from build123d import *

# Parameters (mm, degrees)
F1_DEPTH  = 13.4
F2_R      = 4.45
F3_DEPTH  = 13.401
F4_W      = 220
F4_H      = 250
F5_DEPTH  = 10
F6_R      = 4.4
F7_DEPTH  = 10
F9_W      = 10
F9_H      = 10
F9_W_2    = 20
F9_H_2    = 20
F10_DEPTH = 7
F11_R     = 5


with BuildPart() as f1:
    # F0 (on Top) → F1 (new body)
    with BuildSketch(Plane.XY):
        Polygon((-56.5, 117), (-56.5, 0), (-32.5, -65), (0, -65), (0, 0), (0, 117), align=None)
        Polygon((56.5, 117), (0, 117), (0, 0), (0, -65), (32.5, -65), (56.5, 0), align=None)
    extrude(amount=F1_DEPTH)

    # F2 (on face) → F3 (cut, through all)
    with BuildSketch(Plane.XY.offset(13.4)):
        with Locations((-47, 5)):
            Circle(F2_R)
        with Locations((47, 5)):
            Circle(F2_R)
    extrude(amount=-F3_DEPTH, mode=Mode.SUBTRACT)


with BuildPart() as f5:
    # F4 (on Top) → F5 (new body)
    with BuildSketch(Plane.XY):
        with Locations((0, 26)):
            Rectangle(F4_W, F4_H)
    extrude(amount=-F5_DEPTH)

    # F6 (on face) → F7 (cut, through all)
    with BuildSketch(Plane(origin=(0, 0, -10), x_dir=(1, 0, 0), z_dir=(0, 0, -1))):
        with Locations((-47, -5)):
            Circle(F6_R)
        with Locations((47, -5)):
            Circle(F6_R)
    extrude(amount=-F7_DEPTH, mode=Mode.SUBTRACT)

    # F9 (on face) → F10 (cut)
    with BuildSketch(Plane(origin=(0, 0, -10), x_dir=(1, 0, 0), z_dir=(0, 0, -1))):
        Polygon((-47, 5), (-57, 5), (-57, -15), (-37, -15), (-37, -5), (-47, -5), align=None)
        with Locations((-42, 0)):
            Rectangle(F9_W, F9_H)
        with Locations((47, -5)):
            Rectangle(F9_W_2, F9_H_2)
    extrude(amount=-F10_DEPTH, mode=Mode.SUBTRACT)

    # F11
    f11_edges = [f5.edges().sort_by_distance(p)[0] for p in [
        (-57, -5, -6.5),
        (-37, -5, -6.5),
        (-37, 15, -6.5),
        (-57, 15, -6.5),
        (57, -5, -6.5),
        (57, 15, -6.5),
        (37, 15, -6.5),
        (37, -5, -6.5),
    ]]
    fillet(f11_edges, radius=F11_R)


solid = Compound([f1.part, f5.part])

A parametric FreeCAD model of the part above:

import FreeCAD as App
import Part
import Sketcher
from FreeCAD import Vector


def edges_at(feature, points):
    """Names of the edges that pass closest to the given points."""
    edges = feature.Shape.Edges
    near = lambda p: min(range(len(edges)), key=lambda i: edges[i].distToShape(Part.Vertex(*p))[0])
    return sorted({f"Edge{near(p) + 1}" for p in points})


def add_polygon(sketch, points):
    """Adds a closed chain of lines whose ends are joined by coincident constraints."""
    first, n = sketch.GeometryCount, len(points)
    for a, b in zip(points, points[1:] + points[:1]):
        sketch.addGeometry(Part.LineSegment(App.Vector(*a, 0), App.Vector(*b, 0)), False)
    for i in range(n):
        sketch.addConstraint(Sketcher.Constraint("Coincident", first + i, 2, first + (i + 1) % n, 1))

doc = App.newDocument("Part")
params = doc.addObject("Spreadsheet::Sheet", "Params")
for row, (alias, value) in enumerate([
    ("sketch1_width", "65 mm"),
    ("sketch1_width2", "113 mm"),
    ("sketch1_height", "117 mm"),
    ("pad1_length", "13.4 mm"),
    ("sketch2_diameter", "8.9 mm"),
    ("sketch3_width", "220 mm"),
    ("sketch3_height", "250 mm"),
    ("pad2_length", "10 mm"),
    ("sketch4_diameter", "8.8 mm"),
    ("sketch5_width", "20 mm"),
    ("pocket3_length", "7 mm"),
    ("fillet_radius", "5 mm"),
], start=1):
    params.set(f"A{row}", alias)
    params.set(f"B{row}", "=" + value)
    params.setAlias(f"B{row}", alias)

body = doc.addObject("PartDesign::Body", "Body")

sketch1 = body.newObject("Sketcher::SketchObject", "Sketch")
sketch1.AttachmentSupport = (doc.getObject("XY_Plane"), [""])
sketch1.MapMode = "FlatFace"
add_polygon(sketch1, [(-56, 117), (-56, 0), (-32, -65), (32, -65), (56, 0), (56, 117)])
sketch1.addConstraint(Sketcher.Constraint("Vertical", 0))
sketch1.addConstraint(Sketcher.Constraint("Horizontal", 2))
sketch1.addConstraint(Sketcher.Constraint("Vertical", 4))
sketch1.addConstraint(Sketcher.Constraint("Horizontal", 5))
sketch1.addConstraint(Sketcher.Constraint("Symmetric", 0, 2, 3, 2, -1, 1))
sketch1.addConstraint(Sketcher.Constraint("PointOnObject", 0, 2, -1))
sketch1.addConstraint(Sketcher.Constraint("Equal", 1, 3))
sketch1.addConstraint(Sketcher.Constraint("DistanceX", 2, 1, 2, 2, 65.0))
sketch1.addConstraint(Sketcher.Constraint("DistanceX", 5, 2, 5, 1, 113.0))
sketch1.addConstraint(Sketcher.Constraint("DistanceY", 0, 2, 0, 1, 117.0))
sketch1.addConstraint(Sketcher.Constraint("DistanceY", 1, 2, -1, 1, 65.0))
sketch1.setExpression("Constraints[13]", "Params.sketch1_width")
sketch1.setExpression("Constraints[14]", "Params.sketch1_width2")
sketch1.setExpression("Constraints[15]", "Params.sketch1_height")
pad1 = body.newObject("PartDesign::Pad", "Pad")
pad1.Profile = sketch1
pad1.setExpression("Length", "Params.pad1_length")

sketch2 = body.newObject("Sketcher::SketchObject", "Sketch001")
sketch2.AttachmentSupport = (doc.getObject("XY_Plane"), [""])
sketch2.MapMode = "FlatFace"
sketch2.AttachmentOffset = App.Placement(Vector(0, 0, 13.4), App.Rotation())
sketch2.addGeometry(Part.Circle(Vector(-47, 5, 0), Vector(0, 0, 1), 4.5), False)
sketch2.addGeometry(Part.Circle(Vector(47, 5, 0), Vector(0, 0, 1), 4.5), False)
sketch2.addConstraint(Sketcher.Constraint("Equal", 0, 1))
sketch2.addConstraint(Sketcher.Constraint("Symmetric", 0, 3, 1, 3, -2))
sketch2.addConstraint(Sketcher.Constraint("Diameter", 0, 8.9))
sketch2.addConstraint(Sketcher.Constraint("DistanceX", 0, 3, -1, 1, 47.0))
sketch2.addConstraint(Sketcher.Constraint("DistanceY", -1, 1, 0, 3, 5.0))
sketch2.setExpression("Constraints[2]", "Params.sketch2_diameter")
pocket1 = body.newObject("PartDesign::Pocket", "Pocket")
pocket1.Profile = sketch2
pocket1.Type = "ThroughAll"
body2 = doc.addObject("PartDesign::Body", "Body001")

sketch3 = body2.newObject("Sketcher::SketchObject", "Sketch002")
sketch3.AttachmentSupport = (doc.getObject("XY_Plane001"), [""])
sketch3.MapMode = "FlatFace"
add_polygon(sketch3, [(-110, 151), (-110, -99), (110, -99), (110, 151)])
sketch3.addConstraint(Sketcher.Constraint("Vertical", 0))
sketch3.addConstraint(Sketcher.Constraint("Horizontal", 1))
sketch3.addConstraint(Sketcher.Constraint("Vertical", 2))
sketch3.addConstraint(Sketcher.Constraint("Horizontal", 3))
sketch3.addConstraint(Sketcher.Constraint("DistanceX", 1, 1, 1, 2, 220.0))
sketch3.addConstraint(Sketcher.Constraint("DistanceY", 0, 2, 0, 1, 250.0))
sketch3.addConstraint(Sketcher.Constraint("DistanceX", 0, 2, -1, 1, 110.0))
sketch3.addConstraint(Sketcher.Constraint("DistanceY", 0, 2, -1, 1, 99.0))
sketch3.setExpression("Constraints[8]", "Params.sketch3_width")
sketch3.setExpression("Constraints[9]", "Params.sketch3_height")
pad2 = body2.newObject("PartDesign::Pad", "Pad001")
pad2.Profile = sketch3
pad2.setExpression("Length", "Params.pad2_length")
pad2.Reversed = True

sketch4 = body2.newObject("Sketcher::SketchObject", "Sketch003")
sketch4.AttachmentSupport = (doc.getObject("XY_Plane001"), [""])
sketch4.MapMode = "FlatFace"
sketch4.AttachmentOffset = App.Placement(Vector(0, 0, -10), App.Rotation())
sketch4.addGeometry(Part.Circle(Vector(-47, 5, 0), Vector(0, 0, 1), 4.4), False)
sketch4.addGeometry(Part.Circle(Vector(47, 5, 0), Vector(0, 0, 1), 4.4), False)
sketch4.addConstraint(Sketcher.Constraint("Equal", 0, 1))
sketch4.addConstraint(Sketcher.Constraint("Symmetric", 0, 3, 1, 3, -2))
sketch4.addConstraint(Sketcher.Constraint("Diameter", 0, 8.8))
sketch4.addConstraint(Sketcher.Constraint("DistanceX", 0, 3, -1, 1, 47.0))
sketch4.addConstraint(Sketcher.Constraint("DistanceY", -1, 1, 0, 3, 5.0))
sketch4.setExpression("Constraints[2]", "Params.sketch4_diameter")
pocket2 = body2.newObject("PartDesign::Pocket", "Pocket001")
pocket2.Profile = sketch4
pocket2.Type = "ThroughAll"
pocket2.Reversed = True

sketch5 = body2.newObject("Sketcher::SketchObject", "Sketch004")
sketch5.AttachmentSupport = (doc.getObject("XY_Plane001"), [""])
sketch5.MapMode = "FlatFace"
sketch5.AttachmentOffset = App.Placement(Vector(0, 0, -10), App.Rotation())
add_polygon(sketch5, [(-57, -5), (-57, 15), (-37, 15), (-37, -5)])
add_polygon(sketch5, [(37, -5), (37, 15), (57, 15), (57, -5)])
sketch5.addConstraint(Sketcher.Constraint("Vertical", 0))
sketch5.addConstraint(Sketcher.Constraint("Horizontal", 1))
sketch5.addConstraint(Sketcher.Constraint("Vertical", 2))
sketch5.addConstraint(Sketcher.Constraint("Horizontal", 3))
sketch5.addConstraint(Sketcher.Constraint("Vertical", 4))
sketch5.addConstraint(Sketcher.Constraint("Horizontal", 5))
sketch5.addConstraint(Sketcher.Constraint("Vertical", 6))
sketch5.addConstraint(Sketcher.Constraint("Horizontal", 7))
sketch5.addConstraint(Sketcher.Constraint("Symmetric", 1, 2, 4, 2, -2))
sketch5.addConstraint(Sketcher.Constraint("Symmetric", 3, 2, 6, 2, -2))
sketch5.addConstraint(Sketcher.Constraint("Equal", 7, 0))
sketch5.addConstraint(Sketcher.Constraint("DistanceX", 1, 1, 1, 2, 20.0))
sketch5.addConstraint(Sketcher.Constraint("DistanceX", 0, 2, -1, 1, 57.0))
sketch5.addConstraint(Sketcher.Constraint("DistanceY", -1, 1, 0, 2, 15.0))
sketch5.setExpression("Constraints[19]", "Params.sketch5_width")
pocket3 = body2.newObject("PartDesign::Pocket", "Pocket002")
pocket3.Profile = sketch5
pocket3.setExpression("Length", "Params.pocket3_length")
pocket3.Reversed = True
doc.recompute()

fillet = body2.newObject("PartDesign::Fillet", "Fillet")
fillet.Base = (pocket3, edges_at(pocket3, [
    (-57, -5, -6.5),
    (-37, -5, -6.5),
    (-37, 15, -6.5),
    (-57, 15, -6.5),
    (57, -5, -6.5),
    (57, 15, -6.5),
    (37, 15, -6.5),
    (37, -5, -6.5),
]))
fillet.setExpression("Radius", "Params.fillet_radius")

doc.recompute()
